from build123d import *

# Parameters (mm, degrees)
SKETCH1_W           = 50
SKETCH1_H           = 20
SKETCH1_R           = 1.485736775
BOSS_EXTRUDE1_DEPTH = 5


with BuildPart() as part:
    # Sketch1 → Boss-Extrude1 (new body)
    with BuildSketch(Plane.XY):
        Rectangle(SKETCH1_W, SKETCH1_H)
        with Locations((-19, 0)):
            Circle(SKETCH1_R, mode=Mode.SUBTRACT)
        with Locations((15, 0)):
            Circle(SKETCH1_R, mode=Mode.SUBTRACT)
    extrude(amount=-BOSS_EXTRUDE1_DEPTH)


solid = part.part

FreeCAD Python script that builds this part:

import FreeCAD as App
import Part
import Sketcher
from FreeCAD import Vector
Q = App.Units.Quantity


def add_polygon(sketch, points):
    """Adds a closed chain of lines whose ends are joined by coincident constraints."""
    first, n = sketch.GeometryCount, len(points)
    for a, b in zip(points, points[1:] + points[:1]):
        sketch.addGeometry(Part.LineSegment(App.Vector(*a, 0), App.Vector(*b, 0)), False)
    for i in range(n):
        sketch.addConstraint(Sketcher.Constraint("Coincident", first + i, 2, first + (i + 1) % n, 1))

doc = App.newDocument("Part")
body = doc.addObject("PartDesign::Body", "Body")

sketch1 = body.newObject("Sketcher::SketchObject", "Sketch")
sketch1.AttachmentSupport = (doc.getObject("XY_Plane"), [""])
sketch1.MapMode = "FlatFace"
add_polygon(sketch1, [(-25, 10), (-25, -10), (25, -10), (25, 10)])
sketch1.addGeometry(Part.Circle(Vector(-19, 0, 0), Vector(0, 0, 1), 1.5), False)
sketch1.addGeometry(Part.Circle(Vector(15, 0, 0), Vector(0, 0, 1), 1.5), False)
sketch1.addConstraint([
    Sketcher.Constraint("Vertical", 0),
    Sketcher.Constraint("Horizontal", 1),
    Sketcher.Constraint("Vertical", 2),
    Sketcher.Constraint("Horizontal", 3),
    Sketcher.Constraint("Equal", 4, 5),
    Sketcher.Constraint("Symmetric", 0, 2, 2, 2, -1, 1),
    Sketcher.Constraint("PointOnObject", 4, 3, -1),
    Sketcher.Constraint("PointOnObject", 5, 3, -1),
    Sketcher.Constraint("DistanceX", 1, 1, 1, 2, Q("50 mm")),
    Sketcher.Constraint("DistanceY", 0, 2, 0, 1, Q("20 mm")),
    Sketcher.Constraint("DistanceX", 4, 3, -1, 1, Q("19 mm")),
    Sketcher.Constraint("DistanceX", -1, 1, 5, 3, Q("15 mm")),
    Sketcher.Constraint("Diameter", 4, Q("2.971474 mm")),
])
pad1 = body.newObject("PartDesign::Pad", "Pad")
pad1.Profile = sketch1
pad1.Length = 5
pad1.Reversed = True

doc.recompute()
